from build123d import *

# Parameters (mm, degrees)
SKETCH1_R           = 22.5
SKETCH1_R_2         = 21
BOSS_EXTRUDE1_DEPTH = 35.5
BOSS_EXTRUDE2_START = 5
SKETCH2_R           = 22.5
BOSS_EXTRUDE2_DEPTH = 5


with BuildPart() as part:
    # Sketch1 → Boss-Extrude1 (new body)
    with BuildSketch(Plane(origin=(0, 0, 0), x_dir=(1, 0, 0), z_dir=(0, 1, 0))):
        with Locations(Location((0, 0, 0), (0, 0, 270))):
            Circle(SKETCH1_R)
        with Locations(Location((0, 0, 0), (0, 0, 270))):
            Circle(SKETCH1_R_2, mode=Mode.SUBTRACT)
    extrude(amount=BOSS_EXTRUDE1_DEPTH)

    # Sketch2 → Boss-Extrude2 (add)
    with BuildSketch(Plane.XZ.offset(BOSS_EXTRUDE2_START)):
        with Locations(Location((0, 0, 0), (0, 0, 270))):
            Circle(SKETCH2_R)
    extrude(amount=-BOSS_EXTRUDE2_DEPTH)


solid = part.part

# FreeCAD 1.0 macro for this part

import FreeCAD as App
import Part
import Sketcher

doc = App.newDocument("Part")
params = doc.addObject("Spreadsheet::Sheet", "Params")
for row, (alias, value) in enumerate([
    ("sketch1_diameter", "45 mm"),
    ("sketch1_diameter2", "42 mm"),
    ("pad1_length", "35.5 mm"),
    ("sketch2_diameter", "45 mm"),
    ("pad2_length", "5 mm"),
], start=1):
    params.set(f"A{row}", alias)
    params.set(f"B{row}", "=" + value)
    params.setAlias(f"B{row}", alias)

body = doc.addObject("PartDesign::Body", "Body")

# Sketch on XZ plane
sketch1 = body.newObject("Sketcher::SketchObject", "Sketch")
sketch1.AttachmentSupport = (doc.getObject("XZ_Plane"), [""])
sketch1.MapMode = "FlatFace"
sketch1.addGeometry([
    Part.Circle(App.Vector(0, 0, 0), App.Vector(0, 0, 1), 22),
    Part.Circle(App.Vector(0, 0, 0), App.Vector(0, 0, 1), 21),
], False)
sketch1.addConstraint([
    Sketcher.Constraint("Coincident", 0, 3, -1, 1),
    Sketcher.Constraint("Coincident", 1, 3, -1, 1),
    Sketcher.Constraint("Diameter", 0, 45.0),
    Sketcher.Constraint("Diameter", 1, 42.0),
])
sketch1.setExpression("Constraints[2]", "Params.sketch1_diameter")
sketch1.setExpression("Constraints[3]", "Params.sketch1_diameter2")
pad1 = body.newObject("PartDesign::Pad", "Pad")
pad1.Profile = sketch1
pad1.setExpression("Length", "Params.pad1_length")
pad1.Reversed = True

# Sketch on XZ plane
sketch2 = body.newObject("Sketcher::SketchObject", "Sketch001")
sketch2.AttachmentSupport = (doc.getObject("XZ_Plane"), [""])
sketch2.MapMode = "FlatFace"
sketch2.AttachmentOffset = App.Placement(App.Vector(0, 0, 5), App.Rotation())
sketch2.addGeometry(Part.Circle(App.Vector(0, 0, 0), App.Vector(0, 0, 1), 22), False)
sketch2.addConstraint([
    Sketcher.Constraint("Coincident", 0, 3, -1, 1),
    Sketcher.Constraint("Diameter", 0, 45.0),
])
sketch2.setExpression("Constraints[1]", "Params.sketch2_diameter")
pad2 = body.newObject("PartDesign::Pad", "Pad001")
pad2.Profile = sketch2
pad2.setExpression("Length", "Params.pad2_length")
pad2.Reversed = True

doc.recompute()
